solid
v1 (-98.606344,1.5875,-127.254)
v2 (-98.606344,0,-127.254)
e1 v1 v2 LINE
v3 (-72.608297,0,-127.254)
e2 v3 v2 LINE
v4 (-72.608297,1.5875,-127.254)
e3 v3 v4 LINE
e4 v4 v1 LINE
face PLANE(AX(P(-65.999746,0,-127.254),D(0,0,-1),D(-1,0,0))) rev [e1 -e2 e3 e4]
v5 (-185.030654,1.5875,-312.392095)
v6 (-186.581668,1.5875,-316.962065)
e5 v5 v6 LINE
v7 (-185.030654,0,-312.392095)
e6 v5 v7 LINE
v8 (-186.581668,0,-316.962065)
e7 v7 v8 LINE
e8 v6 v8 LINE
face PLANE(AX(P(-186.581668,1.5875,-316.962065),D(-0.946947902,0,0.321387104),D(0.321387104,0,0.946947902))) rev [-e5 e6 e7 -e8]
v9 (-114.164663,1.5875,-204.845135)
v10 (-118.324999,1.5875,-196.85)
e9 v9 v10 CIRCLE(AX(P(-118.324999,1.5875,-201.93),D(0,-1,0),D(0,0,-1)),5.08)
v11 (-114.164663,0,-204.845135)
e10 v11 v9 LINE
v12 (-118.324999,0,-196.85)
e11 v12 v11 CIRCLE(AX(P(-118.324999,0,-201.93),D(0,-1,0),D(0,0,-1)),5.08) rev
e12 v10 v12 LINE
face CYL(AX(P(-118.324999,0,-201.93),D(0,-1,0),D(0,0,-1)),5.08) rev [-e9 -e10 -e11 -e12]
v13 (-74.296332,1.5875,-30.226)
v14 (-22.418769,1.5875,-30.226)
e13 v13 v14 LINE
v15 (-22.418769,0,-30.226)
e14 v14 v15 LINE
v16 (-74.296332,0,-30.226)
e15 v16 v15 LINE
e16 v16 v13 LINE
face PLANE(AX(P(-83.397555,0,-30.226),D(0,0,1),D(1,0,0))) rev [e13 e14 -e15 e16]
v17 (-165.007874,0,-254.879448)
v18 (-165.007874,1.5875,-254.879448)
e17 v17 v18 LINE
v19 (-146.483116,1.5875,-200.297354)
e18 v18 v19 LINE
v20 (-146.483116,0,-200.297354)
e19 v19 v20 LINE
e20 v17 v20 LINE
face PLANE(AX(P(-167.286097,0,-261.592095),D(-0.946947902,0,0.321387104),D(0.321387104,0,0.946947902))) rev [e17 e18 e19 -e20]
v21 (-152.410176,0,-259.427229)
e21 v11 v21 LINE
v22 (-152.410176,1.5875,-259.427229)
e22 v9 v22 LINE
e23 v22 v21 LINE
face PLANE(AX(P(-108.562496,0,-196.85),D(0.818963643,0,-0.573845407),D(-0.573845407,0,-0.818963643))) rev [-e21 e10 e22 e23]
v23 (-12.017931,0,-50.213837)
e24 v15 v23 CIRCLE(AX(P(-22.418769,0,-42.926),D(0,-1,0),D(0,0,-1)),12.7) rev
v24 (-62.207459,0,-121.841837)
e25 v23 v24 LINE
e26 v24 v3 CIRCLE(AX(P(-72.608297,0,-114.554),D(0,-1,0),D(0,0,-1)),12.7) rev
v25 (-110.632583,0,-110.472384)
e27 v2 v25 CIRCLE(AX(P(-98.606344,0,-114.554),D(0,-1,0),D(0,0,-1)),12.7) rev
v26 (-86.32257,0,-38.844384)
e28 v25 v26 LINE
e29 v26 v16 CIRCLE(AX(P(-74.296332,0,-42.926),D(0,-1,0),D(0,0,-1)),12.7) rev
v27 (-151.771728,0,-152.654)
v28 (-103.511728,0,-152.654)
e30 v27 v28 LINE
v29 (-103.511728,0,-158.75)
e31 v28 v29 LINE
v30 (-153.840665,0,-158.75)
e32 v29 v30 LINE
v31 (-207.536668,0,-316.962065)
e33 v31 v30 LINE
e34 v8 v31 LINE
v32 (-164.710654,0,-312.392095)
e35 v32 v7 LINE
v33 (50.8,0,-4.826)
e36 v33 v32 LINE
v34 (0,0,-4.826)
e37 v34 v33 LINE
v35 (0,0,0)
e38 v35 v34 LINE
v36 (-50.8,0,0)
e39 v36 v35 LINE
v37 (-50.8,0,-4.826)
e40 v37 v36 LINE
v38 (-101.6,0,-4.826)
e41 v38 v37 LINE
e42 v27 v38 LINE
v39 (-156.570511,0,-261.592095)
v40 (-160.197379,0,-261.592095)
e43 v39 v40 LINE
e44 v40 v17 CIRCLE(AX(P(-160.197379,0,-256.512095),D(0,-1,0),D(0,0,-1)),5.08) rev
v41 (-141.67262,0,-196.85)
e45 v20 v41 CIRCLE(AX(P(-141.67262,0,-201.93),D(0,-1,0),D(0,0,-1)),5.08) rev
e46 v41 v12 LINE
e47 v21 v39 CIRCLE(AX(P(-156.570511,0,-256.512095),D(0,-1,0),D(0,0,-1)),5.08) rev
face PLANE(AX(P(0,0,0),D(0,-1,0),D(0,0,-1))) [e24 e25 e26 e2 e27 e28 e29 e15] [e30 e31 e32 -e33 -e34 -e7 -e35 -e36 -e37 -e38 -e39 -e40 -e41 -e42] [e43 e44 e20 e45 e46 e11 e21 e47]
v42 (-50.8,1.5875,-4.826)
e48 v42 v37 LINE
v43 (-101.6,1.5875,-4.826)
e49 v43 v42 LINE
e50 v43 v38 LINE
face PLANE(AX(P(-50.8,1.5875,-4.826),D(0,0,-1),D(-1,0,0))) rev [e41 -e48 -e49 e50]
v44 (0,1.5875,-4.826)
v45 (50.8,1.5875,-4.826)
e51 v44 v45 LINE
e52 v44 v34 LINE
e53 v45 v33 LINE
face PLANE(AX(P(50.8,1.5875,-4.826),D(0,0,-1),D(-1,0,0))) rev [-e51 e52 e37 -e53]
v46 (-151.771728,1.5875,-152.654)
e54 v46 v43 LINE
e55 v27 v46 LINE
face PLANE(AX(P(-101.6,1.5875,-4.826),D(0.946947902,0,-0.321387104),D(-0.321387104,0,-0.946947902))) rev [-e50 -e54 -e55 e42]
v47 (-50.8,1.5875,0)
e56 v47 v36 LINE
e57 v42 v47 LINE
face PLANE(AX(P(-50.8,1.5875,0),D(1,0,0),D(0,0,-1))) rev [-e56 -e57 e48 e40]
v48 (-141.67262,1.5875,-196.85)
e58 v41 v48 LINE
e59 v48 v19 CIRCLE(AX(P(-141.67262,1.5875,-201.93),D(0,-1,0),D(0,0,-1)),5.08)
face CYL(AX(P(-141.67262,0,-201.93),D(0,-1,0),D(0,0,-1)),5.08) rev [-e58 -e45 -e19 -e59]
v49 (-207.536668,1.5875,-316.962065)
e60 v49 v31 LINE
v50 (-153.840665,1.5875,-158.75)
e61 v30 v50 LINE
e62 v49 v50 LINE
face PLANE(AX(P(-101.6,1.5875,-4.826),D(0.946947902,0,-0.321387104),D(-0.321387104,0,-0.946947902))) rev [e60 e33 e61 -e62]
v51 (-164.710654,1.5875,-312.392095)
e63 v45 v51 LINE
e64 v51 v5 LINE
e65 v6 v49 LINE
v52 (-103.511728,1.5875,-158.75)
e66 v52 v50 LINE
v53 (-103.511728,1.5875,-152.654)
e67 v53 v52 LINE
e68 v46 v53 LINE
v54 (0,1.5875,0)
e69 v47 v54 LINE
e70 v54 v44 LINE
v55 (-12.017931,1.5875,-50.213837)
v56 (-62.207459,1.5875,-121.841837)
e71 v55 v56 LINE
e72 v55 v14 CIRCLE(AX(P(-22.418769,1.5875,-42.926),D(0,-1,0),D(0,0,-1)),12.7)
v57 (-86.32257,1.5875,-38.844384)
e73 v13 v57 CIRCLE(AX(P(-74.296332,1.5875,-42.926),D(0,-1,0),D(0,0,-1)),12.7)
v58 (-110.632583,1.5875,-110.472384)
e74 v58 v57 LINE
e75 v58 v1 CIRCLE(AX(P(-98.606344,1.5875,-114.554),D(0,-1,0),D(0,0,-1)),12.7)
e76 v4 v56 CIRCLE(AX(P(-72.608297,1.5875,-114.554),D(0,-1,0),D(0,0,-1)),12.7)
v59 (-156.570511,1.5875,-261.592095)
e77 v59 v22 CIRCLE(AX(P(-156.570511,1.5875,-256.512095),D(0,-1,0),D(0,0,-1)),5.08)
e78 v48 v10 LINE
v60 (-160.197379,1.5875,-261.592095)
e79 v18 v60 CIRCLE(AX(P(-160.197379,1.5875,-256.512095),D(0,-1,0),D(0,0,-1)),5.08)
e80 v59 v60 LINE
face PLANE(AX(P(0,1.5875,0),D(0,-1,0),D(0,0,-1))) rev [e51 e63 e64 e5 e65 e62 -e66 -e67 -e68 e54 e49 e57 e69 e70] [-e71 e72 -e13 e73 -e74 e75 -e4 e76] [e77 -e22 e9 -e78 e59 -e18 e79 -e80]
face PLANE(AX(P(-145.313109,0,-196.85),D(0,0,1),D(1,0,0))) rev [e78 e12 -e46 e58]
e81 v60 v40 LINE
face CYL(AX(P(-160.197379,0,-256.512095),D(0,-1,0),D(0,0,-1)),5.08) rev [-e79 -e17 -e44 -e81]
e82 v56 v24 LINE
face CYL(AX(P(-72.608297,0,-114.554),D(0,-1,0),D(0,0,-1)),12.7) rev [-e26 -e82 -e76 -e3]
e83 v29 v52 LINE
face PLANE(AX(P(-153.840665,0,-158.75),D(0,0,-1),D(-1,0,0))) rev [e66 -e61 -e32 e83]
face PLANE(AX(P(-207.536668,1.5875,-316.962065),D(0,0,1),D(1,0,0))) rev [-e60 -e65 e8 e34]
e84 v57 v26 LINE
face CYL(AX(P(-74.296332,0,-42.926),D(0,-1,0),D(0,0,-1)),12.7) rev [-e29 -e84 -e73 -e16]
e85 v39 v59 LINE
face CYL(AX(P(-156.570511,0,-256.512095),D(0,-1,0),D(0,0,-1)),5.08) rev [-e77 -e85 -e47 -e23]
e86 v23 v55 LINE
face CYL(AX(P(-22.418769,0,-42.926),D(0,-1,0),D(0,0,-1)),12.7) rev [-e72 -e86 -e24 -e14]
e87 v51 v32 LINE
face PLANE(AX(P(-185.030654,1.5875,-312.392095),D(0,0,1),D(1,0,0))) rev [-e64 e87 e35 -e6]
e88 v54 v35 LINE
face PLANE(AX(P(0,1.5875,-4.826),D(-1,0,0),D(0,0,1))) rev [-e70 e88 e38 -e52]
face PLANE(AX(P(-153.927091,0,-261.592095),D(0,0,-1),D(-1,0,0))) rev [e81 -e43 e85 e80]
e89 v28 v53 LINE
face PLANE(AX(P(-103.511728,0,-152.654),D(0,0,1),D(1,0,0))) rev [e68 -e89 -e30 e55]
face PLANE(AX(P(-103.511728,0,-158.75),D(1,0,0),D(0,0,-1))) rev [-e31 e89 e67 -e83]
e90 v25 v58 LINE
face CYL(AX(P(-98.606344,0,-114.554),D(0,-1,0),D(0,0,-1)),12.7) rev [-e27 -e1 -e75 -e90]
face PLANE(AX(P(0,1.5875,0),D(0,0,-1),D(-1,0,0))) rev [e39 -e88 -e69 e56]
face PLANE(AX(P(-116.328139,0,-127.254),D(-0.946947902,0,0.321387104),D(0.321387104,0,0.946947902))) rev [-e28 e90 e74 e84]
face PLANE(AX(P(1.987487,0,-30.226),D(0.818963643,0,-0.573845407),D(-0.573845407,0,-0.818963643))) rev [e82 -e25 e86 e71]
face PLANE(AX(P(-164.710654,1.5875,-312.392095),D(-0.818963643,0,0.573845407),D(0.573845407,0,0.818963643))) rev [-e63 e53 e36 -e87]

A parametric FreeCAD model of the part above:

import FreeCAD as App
import Part
import Sketcher
from FreeCAD import Vector
Q = App.Units.Quantity


def edges_at(feature, points):
    """Names of the edges that pass closest to the given points."""
    edges = feature.Shape.Edges
    near = lambda p: min(range(len(edges)), key=lambda i: edges[i].distToShape(Part.Vertex(*p))[0])
    return sorted({f"Edge{near(p) + 1}" for p in points})

doc = App.newDocument("Part")
params = doc.addObject("Spreadsheet::Sheet", "Params")
for row, (alias, value) in enumerate([
    ("sketch1_width", "2 in"),
    ("sketch1_width2", "0.8 in"),
    ("sketch1_height", "0.19 in"),
    ("sketch1_length", "0.19 in"),
    ("sketch1_width3", "0.825 in"),
    ("pad1_length", "0.0625 in"),
    ("sketch2_width", "1.9 in"),
    ("sketch2_height", "0.24 in"),
    ("fillet_radius", "0.5 in"),
    ("fillet2_radius", "0.2 in"),
], start=1):
    params.set(f"A{row}", alias)
    params.set(f"B{row}", "=" + value)
    params.setAlias(f"B{row}", alias)

body = doc.addObject("PartDesign::Body", "Body")

# Sketch on XZ plane
sketch1 = doc.addObject("Sketcher::SketchObject", "Sketch")
body.addObject(sketch1)
sketch1.AttachmentSupport = (doc.XZ_Plane, [""])
sketch1.MapMode = "FlatFace"
sketch1.addGeometry([
    Part.LineSegment(Vector(-186.6, -317, 0), Vector(-207.5, -317, 0)),  # 0
    Part.LineSegment(Vector(-207.5, -317, 0), Vector(-101.6, -4.8, 0)),  # 1
    Part.LineSegment(Vector(-101.6, -4.8, 0), Vector(-50.8, -4.8, 0)),  # 2
    Part.LineSegment(Vector(-50.8, -4.8, 0), Vector(-50.8, 0, 0)),  # 3
    Part.LineSegment(Vector(-50.8, 0, 0), Vector(0, 0, 0)),  # 4
    Part.LineSegment(Vector(0, 0, 0), Vector(0, -4.8, 0)),  # 5
    Part.LineSegment(Vector(0, -4.8, 0), Vector(50.8, -4.8, 0)),  # 6
    Part.LineSegment(Vector(50.8, -4.8, 0), Vector(-164.7, -312.4, 0)),  # 7
    Part.LineSegment(Vector(-164.7, -312.4, 0), Vector(-185, -312.4, 0)),  # 8
    Part.LineSegment(Vector(-185, -312.4, 0), Vector(-186.6, -317, 0)),  # 9
], False)
sketch1.addConstraint([
    Sketcher.Constraint("Coincident", 0, 2, 1, 1),
    Sketcher.Constraint("Coincident", 1, 2, 2, 1),
    Sketcher.Constraint("Coincident", 2, 2, 3, 1),
    Sketcher.Constraint("Coincident", 3, 2, 4, 1),
    Sketcher.Constraint("Coincident", 4, 2, 5, 1),
    Sketcher.Constraint("Coincident", 5, 2, 6, 1),
    Sketcher.Constraint("Coincident", 6, 2, 7, 1),
    Sketcher.Constraint("Coincident", 7, 2, 8, 1),
    Sketcher.Constraint("Coincident", 8, 2, 9, 1),
    Sketcher.Constraint("Coincident", 9, 2, 0, 1),
    Sketcher.Constraint("Horizontal", 0),
    Sketcher.Constraint("Horizontal", 2),
    Sketcher.Constraint("Vertical", 3),
    Sketcher.Constraint("Horizontal", 4),
    Sketcher.Constraint("Vertical", 5),
    Sketcher.Constraint("Horizontal", 6),
    Sketcher.Constraint("Horizontal", 8),
    Sketcher.Constraint("Coincident", 4, 2, -1, 1),
    Sketcher.Constraint("Symmetric", 2, 2, 6, 2, -2),
    Sketcher.Constraint("Parallel", 1, 9),
    Sketcher.Constraint("Equal", 2, 4),
    Sketcher.Constraint("DistanceX", 2, 1, 2, 2, Q("2 in")),
    Sketcher.Constraint("DistanceX", 8, 2, 8, 1, Q("0.8 in")),
    Sketcher.Constraint("DistanceY", 3, 1, 3, 2, Q("0.19 in")),
    Sketcher.Constraint("Distance", 9, Q("0.19 in")),
    Sketcher.Constraint("DistanceX", 0, 2, 0, 1, Q("0.825 in")),
    Sketcher.Constraint("Distance", 1, Q("329.623271 mm")),
    Sketcher.Constraint("Distance", 7, Q("375.555248 mm")),
])
sketch1.setExpression("Constraints[21]", "Params.sketch1_width")
sketch1.setExpression("Constraints[22]", "Params.sketch1_width2")
sketch1.setExpression("Constraints[23]", "Params.sketch1_height")
sketch1.setExpression("Constraints[24]", "Params.sketch1_length")
sketch1.setExpression("Constraints[25]", "Params.sketch1_width3")
pad1 = doc.addObject("PartDesign::Pad", "Pad")
body.addObject(pad1)
pad1.Profile = sketch1
pad1.setExpression("Length", "Params.pad1_length")
pad1.Reversed = True

# Sketch on XZ plane
sketch2 = doc.addObject("Sketcher::SketchObject", "Sketch001")
body.addObject(sketch2)
sketch2.AttachmentSupport = (doc.XZ_Plane, [""])
sketch2.MapMode = "FlatFace"
sketch2.AttachmentOffset = App.Placement(Vector(0, 0, -0.0625 * 25.4), App.Rotation())
sketch2.addGeometry([
    Part.LineSegment(Vector(-104, -153, 0), Vector(-104, -159, 0)),
    Part.LineSegment(Vector(-104, -159, 0), Vector(-154, -159, 0)),
    Part.LineSegment(Vector(-154, -159, 0), Vector(-152, -153, 0)),
    Part.LineSegment(Vector(-152, -153, 0), Vector(-104, -153, 0)),
], False)
sketch2.addConstraint([
    Sketcher.Constraint("Coincident", 0, 2, 1, 1),
    Sketcher.Constraint("Coincident", 1, 2, 2, 1),
    Sketcher.Constraint("Coincident", 2, 2, 3, 1),
    Sketcher.Constraint("Coincident", 3, 2, 0, 1),
    Sketcher.Constraint("Vertical", 0),
    Sketcher.Constraint("Horizontal", 1),
    Sketcher.Constraint("Horizontal", 3),
    Sketcher.Constraint("DistanceX", 3, 1, 3, 2, Q("1.9 in")),
    Sketcher.Constraint("DistanceY", 0, 2, 0, 1, Q("0.24 in")),
    Sketcher.Constraint("DistanceY", 0, 2, -1, 1, Q("6.25 in")),
    Sketcher.Constraint("DistanceX", 1, 2, 1, 1, Q("50.328937 mm")),
    Sketcher.Constraint("DistanceX", 0, 2, -1, 1, Q("103.511728 mm")),
])
sketch2.setExpression("Constraints[7]", "Params.sketch2_width")
sketch2.setExpression("Constraints[8]", "Params.sketch2_height")
pocket1 = doc.addObject("PartDesign::Pocket", "Pocket")
body.addObject(pocket1)
pocket1.Profile = sketch2
pocket1.Type = "ThroughAll"
pocket1.Reversed = True

# Sketch on XZ plane
sketch3 = doc.addObject("Sketcher::SketchObject", "Sketch002")
body.addObject(sketch3)
sketch3.AttachmentSupport = (doc.XZ_Plane, [""])
sketch3.MapMode = "FlatFace"
sketch3.AttachmentOffset = App.Placement(Vector(0, 0, -0.0625 * 25.4), App.Rotation())
sketch3.addGeometry([
    Part.LineSegment(Vector(-116, -127, 0), Vector(-83, -30, 0)),  # 0
    Part.LineSegment(Vector(-83, -30, 0), Vector(2, -30, 0)),  # 1
    Part.LineSegment(Vector(2, -30, 0), Vector(-66, -127, 0)),  # 2
    Part.LineSegment(Vector(-66, -127, 0), Vector(-116, -127, 0)),  # 3
    Part.LineSegment(Vector(-167, -262, 0), Vector(-145, -197, 0)),  # 4
    Part.LineSegment(Vector(-145, -197, 0), Vector(-109, -197, 0)),  # 5
    Part.LineSegment(Vector(-109, -197, 0), Vector(-154, -262, 0)),  # 6
    Part.LineSegment(Vector(-154, -262, 0), Vector(-167, -262, 0)),  # 7
], False)
sketch3.addConstraint([
    Sketcher.Constraint("Coincident", 0, 2, 1, 1),
    Sketcher.Constraint("Coincident", 1, 2, 2, 1),
    Sketcher.Constraint("Coincident", 2, 2, 3, 1),
    Sketcher.Constraint("Coincident", 3, 2, 0, 1),
    Sketcher.Constraint("Coincident", 4, 2, 5, 1),
    Sketcher.Constraint("Coincident", 5, 2, 6, 1),
    Sketcher.Constraint("Coincident", 6, 2, 7, 1),
    Sketcher.Constraint("Coincident", 7, 2, 4, 1),
    Sketcher.Constraint("Horizontal", 1),
    Sketcher.Constraint("Horizontal", 3),
    Sketcher.Constraint("Horizontal", 5),
    Sketcher.Constraint("Horizontal", 7),
    Sketcher.Constraint("Parallel", 0, 4),
    Sketcher.Constraint("Parallel", 2, 6),
    Sketcher.Constraint("DistanceY", 0, 2, -1, 1, Q("1.19 in")),
    Sketcher.Constraint("DistanceY", 2, 2, -1, 1, Q("5.01 in")),
    Sketcher.Constraint("DistanceY", 4, 2, -1, 1, Q("7.75 in")),
    Sketcher.Constraint("DistanceX", 1, 1, 1, 2, Q("85.385042 mm")),
    Sketcher.Constraint("DistanceX", 7, 2, 5, 2, Q("58.723601 mm")),
    Sketcher.Constraint("DistanceX", 3, 2, 3, 1, Q("50.328393 mm")),
    Sketcher.Constraint("DistanceX", 5, 1, 5, 2, Q("36.750613 mm")),
    Sketcher.Constraint("DistanceX", 7, 2, 7, 1, Q("13.359006 mm")),
    Sketcher.Constraint("DistanceX", 3, 2, -1, 1, Q("116.328139 mm")),
    Sketcher.Constraint("DistanceX", 4, 2, -1, 1, Q("145.313109 mm")),
])
pocket2 = doc.addObject("PartDesign::Pocket", "Pocket001")
body.addObject(pocket2)
pocket2.Profile = sketch3
pocket2.Type = "ThroughAll"
pocket2.Reversed = True
doc.recompute()

fillet = doc.addObject("PartDesign::Fillet", "Fillet")
body.addObject(fillet)
fillet.Base = (pocket2, edges_at(pocket2, [
    (-116.328, 0.794, -127.254),
    (-66, 0.794, -127.254),
    (1.987, 0.794, -30.226),
    (-83.398, 0.794, -30.226),
]))
fillet.setExpression("Radius", "Params.fillet_radius")
doc.recompute()

fillet2 = doc.addObject("PartDesign::Fillet", "Fillet001")
body.addObject(fillet2)
fillet2.Base = (fillet, edges_at(fillet, [
    (-167.286, 0.794, -261.592),
    (-153.927, 0.794, -261.592),
    (-108.562, 0.794, -196.85),
    (-145.313, 0.794, -196.85),
]))
fillet2.setExpression("Radius", "Params.fillet2_radius")

doc.recompute()
